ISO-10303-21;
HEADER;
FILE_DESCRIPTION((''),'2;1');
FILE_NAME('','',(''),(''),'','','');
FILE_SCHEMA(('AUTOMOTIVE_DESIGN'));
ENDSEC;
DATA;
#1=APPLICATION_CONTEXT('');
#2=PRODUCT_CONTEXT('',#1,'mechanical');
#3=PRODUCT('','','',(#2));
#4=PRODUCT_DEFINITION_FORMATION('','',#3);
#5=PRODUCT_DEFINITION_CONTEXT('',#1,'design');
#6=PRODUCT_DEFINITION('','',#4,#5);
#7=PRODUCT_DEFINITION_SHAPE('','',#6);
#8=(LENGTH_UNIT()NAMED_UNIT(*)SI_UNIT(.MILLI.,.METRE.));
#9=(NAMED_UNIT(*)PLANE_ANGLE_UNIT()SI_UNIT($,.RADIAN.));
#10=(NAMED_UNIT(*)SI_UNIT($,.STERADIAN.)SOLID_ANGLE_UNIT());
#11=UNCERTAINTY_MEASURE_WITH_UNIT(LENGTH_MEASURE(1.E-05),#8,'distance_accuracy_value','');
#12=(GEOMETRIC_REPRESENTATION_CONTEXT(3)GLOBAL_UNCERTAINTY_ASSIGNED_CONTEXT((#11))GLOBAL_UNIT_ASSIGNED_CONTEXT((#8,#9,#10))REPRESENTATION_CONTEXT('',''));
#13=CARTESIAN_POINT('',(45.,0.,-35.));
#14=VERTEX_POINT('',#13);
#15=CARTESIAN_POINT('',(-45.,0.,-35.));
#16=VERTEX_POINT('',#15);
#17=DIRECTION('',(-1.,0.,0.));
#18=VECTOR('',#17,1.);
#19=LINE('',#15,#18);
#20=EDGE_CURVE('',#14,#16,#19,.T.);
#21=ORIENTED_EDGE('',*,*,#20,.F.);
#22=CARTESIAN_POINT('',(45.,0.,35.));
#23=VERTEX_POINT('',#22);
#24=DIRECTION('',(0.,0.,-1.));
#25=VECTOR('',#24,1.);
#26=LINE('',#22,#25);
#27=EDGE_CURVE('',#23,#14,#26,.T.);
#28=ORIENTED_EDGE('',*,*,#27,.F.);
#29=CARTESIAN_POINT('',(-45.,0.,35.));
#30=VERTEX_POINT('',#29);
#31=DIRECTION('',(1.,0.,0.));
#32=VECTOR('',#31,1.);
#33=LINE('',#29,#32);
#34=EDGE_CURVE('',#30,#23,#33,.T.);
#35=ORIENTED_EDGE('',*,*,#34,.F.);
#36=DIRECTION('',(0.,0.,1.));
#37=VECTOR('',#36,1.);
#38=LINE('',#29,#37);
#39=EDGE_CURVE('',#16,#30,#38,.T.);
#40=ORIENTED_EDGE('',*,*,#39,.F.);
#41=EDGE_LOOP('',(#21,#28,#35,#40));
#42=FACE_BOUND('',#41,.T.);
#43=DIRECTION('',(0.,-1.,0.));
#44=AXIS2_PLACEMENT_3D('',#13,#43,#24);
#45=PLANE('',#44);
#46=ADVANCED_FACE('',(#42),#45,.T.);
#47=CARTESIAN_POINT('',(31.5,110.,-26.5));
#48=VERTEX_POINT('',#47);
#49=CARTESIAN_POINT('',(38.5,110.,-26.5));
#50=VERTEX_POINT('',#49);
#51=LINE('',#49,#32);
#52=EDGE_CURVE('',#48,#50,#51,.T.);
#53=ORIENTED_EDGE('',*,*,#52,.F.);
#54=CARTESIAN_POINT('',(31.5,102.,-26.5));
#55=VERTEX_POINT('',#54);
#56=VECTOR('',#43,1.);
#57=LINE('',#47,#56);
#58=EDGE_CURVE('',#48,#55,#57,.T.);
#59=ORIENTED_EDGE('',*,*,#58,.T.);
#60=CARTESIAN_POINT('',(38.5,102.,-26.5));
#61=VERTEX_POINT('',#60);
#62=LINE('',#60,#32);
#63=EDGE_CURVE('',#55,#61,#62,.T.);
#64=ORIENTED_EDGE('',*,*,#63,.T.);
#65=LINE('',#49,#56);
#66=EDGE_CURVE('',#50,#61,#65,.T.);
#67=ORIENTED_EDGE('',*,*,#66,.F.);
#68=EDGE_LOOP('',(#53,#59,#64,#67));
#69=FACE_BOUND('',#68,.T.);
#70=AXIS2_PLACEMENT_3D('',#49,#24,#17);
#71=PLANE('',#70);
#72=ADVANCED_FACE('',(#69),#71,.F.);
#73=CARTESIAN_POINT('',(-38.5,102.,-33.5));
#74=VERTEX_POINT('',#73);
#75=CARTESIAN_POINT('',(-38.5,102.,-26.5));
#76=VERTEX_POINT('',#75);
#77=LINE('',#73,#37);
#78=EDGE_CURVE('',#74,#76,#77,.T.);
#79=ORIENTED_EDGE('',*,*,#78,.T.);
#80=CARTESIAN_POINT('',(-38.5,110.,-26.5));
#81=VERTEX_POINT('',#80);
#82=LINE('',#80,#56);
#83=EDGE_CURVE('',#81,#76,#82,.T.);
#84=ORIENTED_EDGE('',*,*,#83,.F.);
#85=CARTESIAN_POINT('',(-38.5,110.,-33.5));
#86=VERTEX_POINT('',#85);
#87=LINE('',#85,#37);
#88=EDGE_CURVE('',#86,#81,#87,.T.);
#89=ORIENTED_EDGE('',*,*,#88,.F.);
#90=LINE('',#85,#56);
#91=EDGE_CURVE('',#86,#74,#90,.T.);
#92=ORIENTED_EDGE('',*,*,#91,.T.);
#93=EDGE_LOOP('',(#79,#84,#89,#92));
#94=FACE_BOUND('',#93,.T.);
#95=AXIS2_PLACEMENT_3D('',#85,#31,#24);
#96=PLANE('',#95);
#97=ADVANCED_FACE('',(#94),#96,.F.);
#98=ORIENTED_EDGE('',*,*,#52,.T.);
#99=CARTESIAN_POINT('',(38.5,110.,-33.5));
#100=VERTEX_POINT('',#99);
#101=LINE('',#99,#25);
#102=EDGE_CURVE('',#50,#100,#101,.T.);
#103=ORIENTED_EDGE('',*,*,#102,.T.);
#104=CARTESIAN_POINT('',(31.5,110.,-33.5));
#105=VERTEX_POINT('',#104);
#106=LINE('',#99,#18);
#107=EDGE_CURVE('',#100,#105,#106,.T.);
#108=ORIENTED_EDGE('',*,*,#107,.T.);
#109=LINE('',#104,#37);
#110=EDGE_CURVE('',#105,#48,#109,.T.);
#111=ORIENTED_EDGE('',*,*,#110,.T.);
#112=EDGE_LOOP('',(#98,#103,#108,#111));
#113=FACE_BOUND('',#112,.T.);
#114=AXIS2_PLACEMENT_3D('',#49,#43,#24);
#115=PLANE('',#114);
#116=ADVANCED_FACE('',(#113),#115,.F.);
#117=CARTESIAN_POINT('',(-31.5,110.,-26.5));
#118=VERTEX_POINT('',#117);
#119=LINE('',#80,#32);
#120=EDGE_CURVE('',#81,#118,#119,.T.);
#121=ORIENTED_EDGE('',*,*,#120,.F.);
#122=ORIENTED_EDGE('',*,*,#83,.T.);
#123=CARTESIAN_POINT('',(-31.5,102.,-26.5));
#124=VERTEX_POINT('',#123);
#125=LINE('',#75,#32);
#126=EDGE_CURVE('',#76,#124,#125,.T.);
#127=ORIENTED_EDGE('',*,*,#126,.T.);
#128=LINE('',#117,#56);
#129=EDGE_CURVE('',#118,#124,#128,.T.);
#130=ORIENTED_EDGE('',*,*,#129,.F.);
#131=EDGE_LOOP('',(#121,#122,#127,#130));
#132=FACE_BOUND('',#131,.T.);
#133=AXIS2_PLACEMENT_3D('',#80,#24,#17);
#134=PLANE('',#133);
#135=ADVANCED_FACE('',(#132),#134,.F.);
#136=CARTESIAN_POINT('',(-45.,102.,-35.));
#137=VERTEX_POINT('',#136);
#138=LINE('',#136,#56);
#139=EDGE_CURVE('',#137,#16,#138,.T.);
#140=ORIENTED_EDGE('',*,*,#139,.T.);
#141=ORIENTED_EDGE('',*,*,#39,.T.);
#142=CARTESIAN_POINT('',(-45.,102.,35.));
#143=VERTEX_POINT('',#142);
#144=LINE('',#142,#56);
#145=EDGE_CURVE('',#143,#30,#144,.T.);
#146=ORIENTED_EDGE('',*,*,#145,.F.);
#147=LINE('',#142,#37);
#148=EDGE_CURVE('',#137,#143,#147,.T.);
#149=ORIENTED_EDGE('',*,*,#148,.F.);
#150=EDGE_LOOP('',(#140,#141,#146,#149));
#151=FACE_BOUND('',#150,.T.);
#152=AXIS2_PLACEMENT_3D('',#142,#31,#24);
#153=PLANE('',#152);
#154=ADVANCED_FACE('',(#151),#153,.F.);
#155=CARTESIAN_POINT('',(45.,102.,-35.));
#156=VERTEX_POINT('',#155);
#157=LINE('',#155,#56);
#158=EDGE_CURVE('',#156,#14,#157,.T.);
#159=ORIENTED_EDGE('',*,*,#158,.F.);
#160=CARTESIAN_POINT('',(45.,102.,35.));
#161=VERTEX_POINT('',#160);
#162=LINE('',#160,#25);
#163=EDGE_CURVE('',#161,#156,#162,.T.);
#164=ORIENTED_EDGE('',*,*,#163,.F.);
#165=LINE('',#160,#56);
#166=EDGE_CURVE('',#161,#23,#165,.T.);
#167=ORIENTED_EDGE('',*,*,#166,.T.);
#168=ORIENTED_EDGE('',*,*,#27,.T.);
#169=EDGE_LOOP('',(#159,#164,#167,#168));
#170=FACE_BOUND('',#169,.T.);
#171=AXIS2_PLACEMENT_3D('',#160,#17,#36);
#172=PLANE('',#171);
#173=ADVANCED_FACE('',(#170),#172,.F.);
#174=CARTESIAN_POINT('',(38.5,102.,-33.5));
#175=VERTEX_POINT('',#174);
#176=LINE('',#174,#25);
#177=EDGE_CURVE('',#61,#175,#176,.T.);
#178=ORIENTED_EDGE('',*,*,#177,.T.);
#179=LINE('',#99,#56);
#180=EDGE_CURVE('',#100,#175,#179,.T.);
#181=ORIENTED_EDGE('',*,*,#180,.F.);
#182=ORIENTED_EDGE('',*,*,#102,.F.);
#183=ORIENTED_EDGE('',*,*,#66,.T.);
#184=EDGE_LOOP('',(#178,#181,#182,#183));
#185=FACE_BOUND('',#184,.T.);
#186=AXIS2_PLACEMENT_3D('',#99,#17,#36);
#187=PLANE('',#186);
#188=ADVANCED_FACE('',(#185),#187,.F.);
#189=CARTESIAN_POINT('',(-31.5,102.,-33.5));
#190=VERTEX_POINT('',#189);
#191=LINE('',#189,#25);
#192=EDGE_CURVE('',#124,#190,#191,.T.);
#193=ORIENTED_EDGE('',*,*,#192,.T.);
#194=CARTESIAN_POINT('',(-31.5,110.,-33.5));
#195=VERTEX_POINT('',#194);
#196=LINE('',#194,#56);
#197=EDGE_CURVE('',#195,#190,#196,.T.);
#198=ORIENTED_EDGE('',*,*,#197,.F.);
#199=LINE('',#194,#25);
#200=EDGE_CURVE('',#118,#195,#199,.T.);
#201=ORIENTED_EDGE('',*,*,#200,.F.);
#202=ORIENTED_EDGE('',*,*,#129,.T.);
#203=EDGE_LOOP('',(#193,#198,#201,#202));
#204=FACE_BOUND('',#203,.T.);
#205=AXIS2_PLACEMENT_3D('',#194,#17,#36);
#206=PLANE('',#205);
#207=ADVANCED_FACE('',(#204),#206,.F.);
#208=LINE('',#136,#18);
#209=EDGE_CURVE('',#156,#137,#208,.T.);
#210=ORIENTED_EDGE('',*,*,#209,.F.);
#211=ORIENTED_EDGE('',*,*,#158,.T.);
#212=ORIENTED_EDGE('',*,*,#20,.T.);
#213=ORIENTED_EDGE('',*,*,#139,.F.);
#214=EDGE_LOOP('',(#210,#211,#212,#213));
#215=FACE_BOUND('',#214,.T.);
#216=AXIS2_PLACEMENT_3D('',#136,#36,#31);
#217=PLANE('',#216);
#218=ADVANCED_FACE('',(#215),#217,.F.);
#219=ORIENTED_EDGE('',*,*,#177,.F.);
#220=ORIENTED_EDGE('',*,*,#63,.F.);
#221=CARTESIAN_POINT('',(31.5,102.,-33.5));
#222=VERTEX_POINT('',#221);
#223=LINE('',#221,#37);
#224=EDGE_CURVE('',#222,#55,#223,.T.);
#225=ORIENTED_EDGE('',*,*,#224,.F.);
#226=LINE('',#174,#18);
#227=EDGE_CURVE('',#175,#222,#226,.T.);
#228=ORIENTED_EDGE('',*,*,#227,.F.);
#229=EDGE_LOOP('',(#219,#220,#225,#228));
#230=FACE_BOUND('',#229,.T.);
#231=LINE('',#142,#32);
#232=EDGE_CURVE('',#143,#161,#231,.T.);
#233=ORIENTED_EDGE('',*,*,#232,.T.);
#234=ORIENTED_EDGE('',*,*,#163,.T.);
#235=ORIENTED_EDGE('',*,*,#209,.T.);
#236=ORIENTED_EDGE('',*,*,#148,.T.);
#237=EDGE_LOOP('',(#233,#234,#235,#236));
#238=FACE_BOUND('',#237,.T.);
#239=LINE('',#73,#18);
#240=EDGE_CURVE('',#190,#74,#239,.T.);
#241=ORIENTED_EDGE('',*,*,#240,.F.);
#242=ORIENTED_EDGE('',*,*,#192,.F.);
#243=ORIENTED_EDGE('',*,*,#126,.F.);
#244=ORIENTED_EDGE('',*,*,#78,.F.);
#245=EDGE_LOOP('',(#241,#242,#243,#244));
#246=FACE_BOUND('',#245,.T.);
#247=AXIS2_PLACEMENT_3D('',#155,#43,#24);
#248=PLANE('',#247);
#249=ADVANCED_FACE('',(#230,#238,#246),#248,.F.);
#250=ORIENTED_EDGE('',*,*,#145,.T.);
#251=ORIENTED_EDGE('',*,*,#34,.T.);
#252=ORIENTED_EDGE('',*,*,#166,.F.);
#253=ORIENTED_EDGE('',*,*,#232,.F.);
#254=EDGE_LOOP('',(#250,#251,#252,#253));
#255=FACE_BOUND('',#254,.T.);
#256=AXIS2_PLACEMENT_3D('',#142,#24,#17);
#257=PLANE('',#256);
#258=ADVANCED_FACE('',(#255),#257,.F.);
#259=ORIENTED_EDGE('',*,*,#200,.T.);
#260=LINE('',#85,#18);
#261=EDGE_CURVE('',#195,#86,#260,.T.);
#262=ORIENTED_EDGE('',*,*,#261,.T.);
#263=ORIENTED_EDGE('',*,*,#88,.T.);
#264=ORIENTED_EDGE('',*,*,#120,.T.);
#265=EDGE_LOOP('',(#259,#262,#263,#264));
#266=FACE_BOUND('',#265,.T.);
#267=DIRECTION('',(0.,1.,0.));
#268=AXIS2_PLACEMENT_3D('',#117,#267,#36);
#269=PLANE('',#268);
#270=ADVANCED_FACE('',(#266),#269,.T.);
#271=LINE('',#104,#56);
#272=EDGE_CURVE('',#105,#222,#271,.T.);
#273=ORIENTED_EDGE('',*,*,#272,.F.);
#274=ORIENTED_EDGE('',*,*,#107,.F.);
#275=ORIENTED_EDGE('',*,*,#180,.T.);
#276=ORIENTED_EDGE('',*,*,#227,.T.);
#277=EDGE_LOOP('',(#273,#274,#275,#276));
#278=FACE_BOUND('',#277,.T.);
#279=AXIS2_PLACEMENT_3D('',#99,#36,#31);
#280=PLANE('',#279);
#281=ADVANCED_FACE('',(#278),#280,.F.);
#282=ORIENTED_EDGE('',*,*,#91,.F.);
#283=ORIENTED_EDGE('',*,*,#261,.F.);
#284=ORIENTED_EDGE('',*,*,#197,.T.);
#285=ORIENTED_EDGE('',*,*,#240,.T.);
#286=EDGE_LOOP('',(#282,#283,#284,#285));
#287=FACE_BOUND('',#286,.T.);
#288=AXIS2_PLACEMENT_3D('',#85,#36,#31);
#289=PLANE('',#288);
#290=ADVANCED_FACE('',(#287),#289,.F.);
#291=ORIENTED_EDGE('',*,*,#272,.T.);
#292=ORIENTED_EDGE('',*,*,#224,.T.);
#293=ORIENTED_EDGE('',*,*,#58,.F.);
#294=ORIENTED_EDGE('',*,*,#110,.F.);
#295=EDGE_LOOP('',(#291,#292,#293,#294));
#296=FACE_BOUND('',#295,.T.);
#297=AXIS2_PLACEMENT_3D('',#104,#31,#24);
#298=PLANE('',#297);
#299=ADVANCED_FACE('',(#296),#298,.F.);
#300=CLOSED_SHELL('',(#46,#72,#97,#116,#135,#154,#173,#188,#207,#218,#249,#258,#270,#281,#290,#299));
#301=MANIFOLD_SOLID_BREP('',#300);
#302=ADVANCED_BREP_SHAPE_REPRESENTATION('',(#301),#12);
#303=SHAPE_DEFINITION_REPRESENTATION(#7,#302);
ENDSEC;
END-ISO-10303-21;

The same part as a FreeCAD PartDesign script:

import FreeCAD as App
import Part
import Sketcher


def add_polygon(sketch, points):
    """Adds a closed chain of lines whose ends are joined by coincident constraints."""
    first, n = sketch.GeometryCount, len(points)
    for a, b in zip(points, points[1:] + points[:1]):
        sketch.addGeometry(Part.LineSegment(App.Vector(*a, 0), App.Vector(*b, 0)), False)
    for i in range(n):
        sketch.addConstraint(Sketcher.Constraint("Coincident", first + i, 2, first + (i + 1) % n, 1))

doc = App.newDocument("Part")
body = doc.addObject("PartDesign::Body", "Body")

sketch1 = body.newObject("Sketcher::SketchObject", "Sketch")
sketch1.AttachmentSupport = (doc.getObject("XZ_Plane"), [""])
sketch1.MapMode = "FlatFace"
add_polygon(sketch1, [(-45, -35), (-45, 35), (45, 35), (45, -35)])
sketch1.addConstraint([
    Sketcher.Constraint("Vertical", 0),
    Sketcher.Constraint("Horizontal", 1),
    Sketcher.Constraint("Vertical", 2),
    Sketcher.Constraint("Horizontal", 3),
    Sketcher.Constraint("Symmetric", 0, 2, 2, 2, -1, 1),
    Sketcher.Constraint("DistanceX", 1, 1, 1, 2, 90.0),
    Sketcher.Constraint("DistanceY", 0, 1, 0, 2, 70.0),
])
pad1 = body.newObject("PartDesign::Pad", "Pad")
pad1.Profile = sketch1
pad1.Length = 102
pad1.Reversed = True

sketch2 = body.newObject("Sketcher::SketchObject", "Sketch001")
sketch2.AttachmentSupport = (doc.getObject("XZ_Plane"), [""])
sketch2.MapMode = "FlatFace"
sketch2.AttachmentOffset = App.Placement(App.Vector(0, 0, -102), App.Rotation())
add_polygon(sketch2, [(32, -34), (32, -26), (38, -26), (38, -34)])
add_polygon(sketch2, [(-38, -34), (-38, -26), (-32, -26), (-32, -34)])
sketch2.addConstraint([
    Sketcher.Constraint("Vertical", 0),
    Sketcher.Constraint("Horizontal", 1),
    Sketcher.Constraint("Vertical", 2),
    Sketcher.Constraint("Horizontal", 3),
    Sketcher.Constraint("Vertical", 4),
    Sketcher.Constraint("Horizontal", 5),
    Sketcher.Constraint("Vertical", 6),
    Sketcher.Constraint("Horizontal", 7),
    Sketcher.Constraint("Symmetric", 1, 2, 4, 2, -2),
    Sketcher.Constraint("Symmetric", 3, 2, 6, 2, -2),
    Sketcher.Constraint("Equal", 7, 0),
    Sketcher.Constraint("DistanceX", 1, 1, 1, 2, 7.0),
    Sketcher.Constraint("DistanceX", 4, 2, 0, 2, 70.0),
    Sketcher.Constraint("DistanceY", 0, 2, -1, 1, 26.5),
])
pad2 = body.newObject("PartDesign::Pad", "Pad001")
pad2.Profile = sketch2
pad2.Length = 8
pad2.Reversed = True

doc.recompute()
